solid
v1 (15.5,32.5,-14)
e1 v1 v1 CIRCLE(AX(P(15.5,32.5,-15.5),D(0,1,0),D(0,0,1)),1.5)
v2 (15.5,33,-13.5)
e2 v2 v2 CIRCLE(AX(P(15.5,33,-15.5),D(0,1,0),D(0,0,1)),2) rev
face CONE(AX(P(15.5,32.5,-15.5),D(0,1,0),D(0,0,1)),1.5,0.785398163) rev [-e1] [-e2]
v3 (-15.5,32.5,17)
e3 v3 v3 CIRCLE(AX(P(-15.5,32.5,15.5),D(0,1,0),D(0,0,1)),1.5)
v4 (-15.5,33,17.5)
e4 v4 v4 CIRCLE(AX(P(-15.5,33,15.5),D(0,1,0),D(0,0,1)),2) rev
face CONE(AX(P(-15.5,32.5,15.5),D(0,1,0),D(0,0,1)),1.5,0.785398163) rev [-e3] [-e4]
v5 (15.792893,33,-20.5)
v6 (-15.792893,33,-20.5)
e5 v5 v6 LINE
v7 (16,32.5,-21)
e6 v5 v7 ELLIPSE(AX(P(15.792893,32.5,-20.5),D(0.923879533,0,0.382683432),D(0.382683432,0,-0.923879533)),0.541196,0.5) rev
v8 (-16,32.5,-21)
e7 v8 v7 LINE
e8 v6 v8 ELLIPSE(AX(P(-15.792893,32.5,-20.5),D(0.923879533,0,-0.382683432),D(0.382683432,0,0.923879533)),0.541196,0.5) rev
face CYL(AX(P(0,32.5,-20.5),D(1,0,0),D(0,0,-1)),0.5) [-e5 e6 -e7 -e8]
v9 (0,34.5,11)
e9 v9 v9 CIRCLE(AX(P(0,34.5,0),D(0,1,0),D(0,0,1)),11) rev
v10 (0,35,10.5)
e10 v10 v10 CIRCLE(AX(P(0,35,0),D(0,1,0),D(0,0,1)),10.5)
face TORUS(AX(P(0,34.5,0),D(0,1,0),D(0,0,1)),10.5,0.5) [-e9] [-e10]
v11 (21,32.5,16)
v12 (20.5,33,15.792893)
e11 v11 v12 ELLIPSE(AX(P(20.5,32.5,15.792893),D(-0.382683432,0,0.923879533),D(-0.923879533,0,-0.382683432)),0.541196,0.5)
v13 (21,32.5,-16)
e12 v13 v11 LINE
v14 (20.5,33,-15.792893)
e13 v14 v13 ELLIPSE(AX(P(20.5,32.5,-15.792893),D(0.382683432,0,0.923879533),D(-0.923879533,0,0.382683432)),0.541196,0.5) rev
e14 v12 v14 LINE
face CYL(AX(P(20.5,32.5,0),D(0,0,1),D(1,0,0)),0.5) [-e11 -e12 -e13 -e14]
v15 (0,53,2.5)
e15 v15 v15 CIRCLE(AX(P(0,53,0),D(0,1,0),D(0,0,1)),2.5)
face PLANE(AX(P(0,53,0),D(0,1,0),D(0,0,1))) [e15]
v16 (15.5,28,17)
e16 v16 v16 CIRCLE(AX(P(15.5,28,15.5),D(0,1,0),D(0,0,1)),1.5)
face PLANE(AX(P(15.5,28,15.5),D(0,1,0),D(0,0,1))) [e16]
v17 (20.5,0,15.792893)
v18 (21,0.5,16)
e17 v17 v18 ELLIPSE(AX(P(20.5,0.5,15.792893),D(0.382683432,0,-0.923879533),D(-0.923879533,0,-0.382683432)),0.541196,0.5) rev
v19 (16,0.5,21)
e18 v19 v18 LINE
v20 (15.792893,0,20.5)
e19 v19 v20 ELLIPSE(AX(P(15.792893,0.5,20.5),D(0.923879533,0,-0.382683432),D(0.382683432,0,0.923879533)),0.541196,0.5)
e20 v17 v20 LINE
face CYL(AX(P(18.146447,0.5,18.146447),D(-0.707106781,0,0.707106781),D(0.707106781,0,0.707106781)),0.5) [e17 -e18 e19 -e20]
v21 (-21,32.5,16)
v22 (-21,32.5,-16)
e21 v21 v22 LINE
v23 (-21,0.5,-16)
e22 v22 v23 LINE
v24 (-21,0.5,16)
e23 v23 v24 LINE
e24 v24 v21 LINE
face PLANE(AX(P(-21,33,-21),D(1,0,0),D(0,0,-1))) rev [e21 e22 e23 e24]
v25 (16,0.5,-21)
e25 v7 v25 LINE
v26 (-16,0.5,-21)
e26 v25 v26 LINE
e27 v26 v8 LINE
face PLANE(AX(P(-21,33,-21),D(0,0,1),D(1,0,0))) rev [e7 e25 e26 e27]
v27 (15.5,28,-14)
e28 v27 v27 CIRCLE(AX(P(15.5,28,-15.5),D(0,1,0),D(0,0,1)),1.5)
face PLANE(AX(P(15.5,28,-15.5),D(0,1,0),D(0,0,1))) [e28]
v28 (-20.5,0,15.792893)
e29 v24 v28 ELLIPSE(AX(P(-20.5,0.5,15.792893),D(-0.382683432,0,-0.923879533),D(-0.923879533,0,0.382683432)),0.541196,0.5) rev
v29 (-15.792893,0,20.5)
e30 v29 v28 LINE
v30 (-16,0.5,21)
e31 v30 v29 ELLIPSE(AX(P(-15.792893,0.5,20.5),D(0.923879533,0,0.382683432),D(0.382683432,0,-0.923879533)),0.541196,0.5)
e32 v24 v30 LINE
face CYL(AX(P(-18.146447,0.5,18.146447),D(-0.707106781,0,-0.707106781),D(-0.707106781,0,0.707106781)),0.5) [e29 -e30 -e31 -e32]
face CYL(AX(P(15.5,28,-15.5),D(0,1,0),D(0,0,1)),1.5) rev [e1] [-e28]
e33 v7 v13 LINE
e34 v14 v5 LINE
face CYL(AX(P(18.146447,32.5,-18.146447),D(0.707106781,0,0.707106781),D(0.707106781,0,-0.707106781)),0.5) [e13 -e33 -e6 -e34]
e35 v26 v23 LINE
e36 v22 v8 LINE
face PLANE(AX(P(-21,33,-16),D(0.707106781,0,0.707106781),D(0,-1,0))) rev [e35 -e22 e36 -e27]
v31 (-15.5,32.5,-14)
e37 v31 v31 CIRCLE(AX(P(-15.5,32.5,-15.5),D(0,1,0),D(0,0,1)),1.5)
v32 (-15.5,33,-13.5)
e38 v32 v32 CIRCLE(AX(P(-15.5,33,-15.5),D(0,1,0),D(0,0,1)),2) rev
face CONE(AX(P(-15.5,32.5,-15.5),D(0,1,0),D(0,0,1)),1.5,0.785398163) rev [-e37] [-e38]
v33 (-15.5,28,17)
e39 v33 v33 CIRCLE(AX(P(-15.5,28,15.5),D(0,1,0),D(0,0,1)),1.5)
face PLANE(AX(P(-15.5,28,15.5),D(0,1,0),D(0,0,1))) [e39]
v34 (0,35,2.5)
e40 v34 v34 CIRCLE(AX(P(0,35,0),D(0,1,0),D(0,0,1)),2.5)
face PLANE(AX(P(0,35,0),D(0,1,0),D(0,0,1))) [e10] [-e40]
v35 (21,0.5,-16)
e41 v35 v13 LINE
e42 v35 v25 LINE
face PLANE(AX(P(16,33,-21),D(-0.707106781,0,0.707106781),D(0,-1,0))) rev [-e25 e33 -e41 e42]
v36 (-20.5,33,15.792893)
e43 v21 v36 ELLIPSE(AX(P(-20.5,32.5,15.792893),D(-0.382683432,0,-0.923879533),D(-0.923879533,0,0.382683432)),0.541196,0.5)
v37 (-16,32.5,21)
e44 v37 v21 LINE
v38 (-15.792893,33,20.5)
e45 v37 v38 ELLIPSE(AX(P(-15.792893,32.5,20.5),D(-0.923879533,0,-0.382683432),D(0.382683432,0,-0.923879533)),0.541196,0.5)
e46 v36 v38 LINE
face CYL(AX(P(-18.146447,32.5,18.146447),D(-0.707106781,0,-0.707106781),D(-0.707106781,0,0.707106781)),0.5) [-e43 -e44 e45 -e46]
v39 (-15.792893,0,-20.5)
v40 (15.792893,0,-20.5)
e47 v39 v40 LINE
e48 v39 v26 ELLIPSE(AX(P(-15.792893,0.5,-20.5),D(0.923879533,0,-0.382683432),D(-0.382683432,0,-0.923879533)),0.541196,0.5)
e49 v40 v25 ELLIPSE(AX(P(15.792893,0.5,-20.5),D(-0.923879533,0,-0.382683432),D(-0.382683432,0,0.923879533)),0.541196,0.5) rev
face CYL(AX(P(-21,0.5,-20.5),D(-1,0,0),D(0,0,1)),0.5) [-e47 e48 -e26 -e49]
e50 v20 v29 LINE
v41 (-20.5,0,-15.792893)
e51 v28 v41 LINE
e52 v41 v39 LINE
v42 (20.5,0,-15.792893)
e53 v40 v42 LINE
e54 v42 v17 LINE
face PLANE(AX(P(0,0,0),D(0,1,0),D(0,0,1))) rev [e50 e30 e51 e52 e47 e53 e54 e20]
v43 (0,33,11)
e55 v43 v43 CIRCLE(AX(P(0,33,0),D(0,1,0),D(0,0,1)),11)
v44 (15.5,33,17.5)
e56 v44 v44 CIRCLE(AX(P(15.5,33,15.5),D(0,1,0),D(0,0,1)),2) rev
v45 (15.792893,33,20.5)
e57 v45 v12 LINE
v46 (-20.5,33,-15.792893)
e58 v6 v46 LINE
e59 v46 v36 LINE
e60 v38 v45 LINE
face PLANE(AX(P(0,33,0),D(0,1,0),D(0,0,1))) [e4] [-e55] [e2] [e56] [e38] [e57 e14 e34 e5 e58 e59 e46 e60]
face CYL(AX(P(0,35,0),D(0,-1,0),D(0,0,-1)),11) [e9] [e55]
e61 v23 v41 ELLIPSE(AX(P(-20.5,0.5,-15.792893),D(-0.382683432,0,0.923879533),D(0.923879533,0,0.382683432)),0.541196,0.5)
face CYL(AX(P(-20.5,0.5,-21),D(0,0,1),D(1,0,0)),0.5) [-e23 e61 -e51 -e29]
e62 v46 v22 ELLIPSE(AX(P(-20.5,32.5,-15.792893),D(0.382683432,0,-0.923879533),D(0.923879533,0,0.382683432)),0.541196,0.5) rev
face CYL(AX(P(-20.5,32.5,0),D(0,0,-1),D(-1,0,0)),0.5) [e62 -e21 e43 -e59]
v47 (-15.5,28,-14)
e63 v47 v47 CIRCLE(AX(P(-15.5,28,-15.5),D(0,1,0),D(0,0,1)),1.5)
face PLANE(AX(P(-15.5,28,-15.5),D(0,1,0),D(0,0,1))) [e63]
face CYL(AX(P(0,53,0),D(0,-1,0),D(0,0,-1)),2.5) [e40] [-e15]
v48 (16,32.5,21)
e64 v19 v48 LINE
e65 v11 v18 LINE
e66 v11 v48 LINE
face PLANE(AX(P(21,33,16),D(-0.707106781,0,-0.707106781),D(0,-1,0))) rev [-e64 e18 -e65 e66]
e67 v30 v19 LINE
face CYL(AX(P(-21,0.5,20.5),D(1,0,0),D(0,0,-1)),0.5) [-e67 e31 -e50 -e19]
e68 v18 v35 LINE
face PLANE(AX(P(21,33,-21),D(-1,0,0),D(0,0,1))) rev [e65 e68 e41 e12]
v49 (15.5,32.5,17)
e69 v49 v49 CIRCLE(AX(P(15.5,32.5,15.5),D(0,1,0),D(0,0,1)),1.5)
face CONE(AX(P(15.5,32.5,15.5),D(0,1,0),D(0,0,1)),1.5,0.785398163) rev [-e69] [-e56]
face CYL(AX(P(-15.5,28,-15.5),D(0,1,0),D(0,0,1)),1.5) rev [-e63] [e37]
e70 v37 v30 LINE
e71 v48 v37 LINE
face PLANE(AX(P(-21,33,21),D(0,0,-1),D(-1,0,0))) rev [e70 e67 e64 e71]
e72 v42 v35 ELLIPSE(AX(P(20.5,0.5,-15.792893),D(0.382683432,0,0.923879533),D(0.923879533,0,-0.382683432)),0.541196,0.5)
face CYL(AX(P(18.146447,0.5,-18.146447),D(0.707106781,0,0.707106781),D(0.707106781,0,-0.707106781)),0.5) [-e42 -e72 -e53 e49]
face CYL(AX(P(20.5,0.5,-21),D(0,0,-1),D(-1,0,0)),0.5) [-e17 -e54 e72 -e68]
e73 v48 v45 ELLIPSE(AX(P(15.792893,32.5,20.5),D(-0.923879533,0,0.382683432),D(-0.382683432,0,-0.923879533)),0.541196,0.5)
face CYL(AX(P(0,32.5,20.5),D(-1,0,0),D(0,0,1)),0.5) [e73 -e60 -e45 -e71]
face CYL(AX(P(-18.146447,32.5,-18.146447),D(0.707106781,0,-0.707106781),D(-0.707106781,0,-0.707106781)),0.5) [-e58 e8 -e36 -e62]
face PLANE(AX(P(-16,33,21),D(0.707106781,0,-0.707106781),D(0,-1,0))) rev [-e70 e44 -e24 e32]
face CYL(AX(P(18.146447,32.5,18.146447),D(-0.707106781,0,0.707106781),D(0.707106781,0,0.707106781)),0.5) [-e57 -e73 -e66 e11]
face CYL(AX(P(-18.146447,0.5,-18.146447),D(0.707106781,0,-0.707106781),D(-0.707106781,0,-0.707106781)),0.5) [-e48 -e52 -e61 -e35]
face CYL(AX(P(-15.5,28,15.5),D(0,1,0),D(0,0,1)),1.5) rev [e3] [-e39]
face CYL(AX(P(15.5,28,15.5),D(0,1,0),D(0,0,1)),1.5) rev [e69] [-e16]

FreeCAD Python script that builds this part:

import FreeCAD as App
import Part
import Sketcher


def edges_at(feature, points):
    """Names of the edges that pass closest to the given points."""
    edges = feature.Shape.Edges
    near = lambda p: min(range(len(edges)), key=lambda i: edges[i].distToShape(Part.Vertex(*p))[0])
    return sorted({f"Edge{near(p) + 1}" for p in points})

doc = App.newDocument("Part")
body = doc.addObject("PartDesign::Body", "Body")

# Sketch on XZ plane
sketch1 = body.newObject("Sketcher::SketchObject", "Sketch")
sketch1.AttachmentSupport = (doc.getObject("XZ_Plane"), [""])
sketch1.MapMode = "FlatFace"
sketch1.addGeometry(Part.LineSegment(App.Vector(-21, -21, 0), App.Vector(-21, 21, 0)), False)
sketch1.addGeometry(Part.LineSegment(App.Vector(-21, 21, 0), App.Vector(21, 21, 0)), False)
sketch1.addGeometry(Part.LineSegment(App.Vector(21, 21, 0), App.Vector(21, -21, 0)), False)
sketch1.addGeometry(Part.LineSegment(App.Vector(21, -21, 0), App.Vector(-21, -21, 0)), False)
sketch1.addConstraint(Sketcher.Constraint("Coincident", 0, 2, 1, 1))
sketch1.addConstraint(Sketcher.Constraint("Coincident", 1, 2, 2, 1))
sketch1.addConstraint(Sketcher.Constraint("Coincident", 2, 2, 3, 1))
sketch1.addConstraint(Sketcher.Constraint("Coincident", 3, 2, 0, 1))
sketch1.addConstraint(Sketcher.Constraint("Vertical", 0))
sketch1.addConstraint(Sketcher.Constraint("Horizontal", 1))
sketch1.addConstraint(Sketcher.Constraint("Vertical", 2))
sketch1.addConstraint(Sketcher.Constraint("Horizontal", 3))
sketch1.addConstraint(Sketcher.Constraint("Symmetric", 0, 2, 2, 2, -1, 1))
sketch1.addConstraint(Sketcher.Constraint("Equal", 3, 0))
sketch1.addConstraint(Sketcher.Constraint("DistanceX", 1, 1, 1, 2, 42.0))
pad1 = body.newObject("PartDesign::Pad", "Pad")
pad1.Profile = sketch1
pad1.Length = 33
pad1.Reversed = True

# Sketch on XZ plane
sketch2 = body.newObject("Sketcher::SketchObject", "Sketch001")
sketch2.AttachmentSupport = (doc.getObject("XZ_Plane"), [""])
sketch2.MapMode = "FlatFace"
sketch2.AttachmentOffset = App.Placement(App.Vector(0, 0, -33), App.Rotation())
sketch2.addGeometry(Part.Circle(App.Vector(0, 0, 0), App.Vector(0, 0, 1), 11), False)
sketch2.addConstraint(Sketcher.Constraint("Coincident", 0, 3, -1, 1))
sketch2.addConstraint(Sketcher.Constraint("Diameter", 0, 22.0))
pad2 = body.newObject("PartDesign::Pad", "Pad001")
pad2.Profile = sketch2
pad2.Length = 2
pad2.Reversed = True

# Sketch on XZ plane
sketch3 = body.newObject("Sketcher::SketchObject", "Sketch002")
sketch3.AttachmentSupport = (doc.getObject("XZ_Plane"), [""])
sketch3.MapMode = "FlatFace"
sketch3.AttachmentOffset = App.Placement(App.Vector(0, 0, -35), App.Rotation())
sketch3.addGeometry(Part.Circle(App.Vector(0, 0, 0), App.Vector(0, 0, 1), 2.5), False)
sketch3.addConstraint(Sketcher.Constraint("Coincident", 0, 3, -1, 1))
sketch3.addConstraint(Sketcher.Constraint("Diameter", 0, 5.0))
pad3 = body.newObject("PartDesign::Pad", "Pad002")
pad3.Profile = sketch3
pad3.Length = 18
pad3.Reversed = True

# Sketch on XZ plane
sketch4 = body.newObject("Sketcher::SketchObject", "Sketch003")
sketch4.AttachmentSupport = (doc.getObject("XZ_Plane"), [""])
sketch4.MapMode = "FlatFace"
sketch4.AttachmentOffset = App.Placement(App.Vector(0, 0, -33), App.Rotation())
sketch4.addGeometry(Part.Circle(App.Vector(-15.5, -15.5, 0), App.Vector(0, 0, 1), 1.5), False)
sketch4.addGeometry(Part.Circle(App.Vector(15.5, -15.5, 0), App.Vector(0, 0, 1), 1.5), False)
sketch4.addGeometry(Part.Circle(App.Vector(15.5, 15.5, 0), App.Vector(0, 0, 1), 1.5), False)
sketch4.addGeometry(Part.Circle(App.Vector(-15.5, 15.5, 0), App.Vector(0, 0, 1), 1.5), False)
sketch4.addConstraint(Sketcher.Constraint("Equal", 0, 1))
sketch4.addConstraint(Sketcher.Constraint("Equal", 1, 2))
sketch4.addConstraint(Sketcher.Constraint("Equal", 2, 3))
sketch4.addConstraint(Sketcher.Constraint("Symmetric", 0, 3, 2, 3, -1, 1))
sketch4.addConstraint(Sketcher.Constraint("Symmetric", 1, 3, 3, 3, -1, 1))
sketch4.addConstraint(Sketcher.Constraint("Symmetric", 0, 3, 1, 3, -2))
sketch4.addConstraint(Sketcher.Constraint("Diameter", 0, 3.0))
sketch4.addConstraint(Sketcher.Constraint("DistanceX", 0, 3, 1, 3, 31.0))
sketch4.addConstraint(Sketcher.Constraint("DistanceY", 1, 3, 2, 3, 31.0))
pocket1 = body.newObject("PartDesign::Pocket", "Pocket")
pocket1.Profile = sketch4
pocket1.Length = 5
pocket1.Reversed = True
doc.recompute()

chamfer = body.newObject("PartDesign::Chamfer", "Chamfer")
chamfer.Base = (pocket1, edges_at(pocket1, [
    (-21, 16.5, -21),
    (21, 16.5, -21),
    (21, 16.5, 21),
    (-21, 16.5, 21),
]))
chamfer.Size = 5
doc.recompute()

chamfer2 = body.newObject("PartDesign::Chamfer", "Chamfer001")
chamfer2.Base = (chamfer, edges_at(chamfer, [
    (-15.5, 33, -17),
    (15.5, 33, -17),
    (15.5, 33, 14),
    (-15.5, 33, 14),
]))
chamfer2.Size = 0.5
doc.recompute()

fillet = body.newObject("PartDesign::Fillet", "Fillet")
fillet.Base = (chamfer2, edges_at(chamfer2, [
    (0, 0, 21),
    (0, 33, 21),
    (-21, 0, 0),
    (0, 0, -21),
    (21, 0, 0),
    (18.5, 0, 18.5),
    (18.5, 0, -18.5),
    (-18.5, 0, -18.5),
    (-18.5, 0, 18.5),
    (-21, 33, 0),
    (21, 33, 0),
    (0, 33, -21),
    (18.5, 33, 18.5),
    (18.5, 33, -18.5),
    (-18.5, 33, -18.5),
    (-18.5, 33, 18.5),
]))
fillet.Radius = 0.5
doc.recompute()

fillet2 = body.newObject("PartDesign::Fillet", "Fillet001")
fillet2.Base = (fillet, edges_at(fillet, [(0, 35, -11)]))
fillet2.Radius = 0.5

doc.recompute()
